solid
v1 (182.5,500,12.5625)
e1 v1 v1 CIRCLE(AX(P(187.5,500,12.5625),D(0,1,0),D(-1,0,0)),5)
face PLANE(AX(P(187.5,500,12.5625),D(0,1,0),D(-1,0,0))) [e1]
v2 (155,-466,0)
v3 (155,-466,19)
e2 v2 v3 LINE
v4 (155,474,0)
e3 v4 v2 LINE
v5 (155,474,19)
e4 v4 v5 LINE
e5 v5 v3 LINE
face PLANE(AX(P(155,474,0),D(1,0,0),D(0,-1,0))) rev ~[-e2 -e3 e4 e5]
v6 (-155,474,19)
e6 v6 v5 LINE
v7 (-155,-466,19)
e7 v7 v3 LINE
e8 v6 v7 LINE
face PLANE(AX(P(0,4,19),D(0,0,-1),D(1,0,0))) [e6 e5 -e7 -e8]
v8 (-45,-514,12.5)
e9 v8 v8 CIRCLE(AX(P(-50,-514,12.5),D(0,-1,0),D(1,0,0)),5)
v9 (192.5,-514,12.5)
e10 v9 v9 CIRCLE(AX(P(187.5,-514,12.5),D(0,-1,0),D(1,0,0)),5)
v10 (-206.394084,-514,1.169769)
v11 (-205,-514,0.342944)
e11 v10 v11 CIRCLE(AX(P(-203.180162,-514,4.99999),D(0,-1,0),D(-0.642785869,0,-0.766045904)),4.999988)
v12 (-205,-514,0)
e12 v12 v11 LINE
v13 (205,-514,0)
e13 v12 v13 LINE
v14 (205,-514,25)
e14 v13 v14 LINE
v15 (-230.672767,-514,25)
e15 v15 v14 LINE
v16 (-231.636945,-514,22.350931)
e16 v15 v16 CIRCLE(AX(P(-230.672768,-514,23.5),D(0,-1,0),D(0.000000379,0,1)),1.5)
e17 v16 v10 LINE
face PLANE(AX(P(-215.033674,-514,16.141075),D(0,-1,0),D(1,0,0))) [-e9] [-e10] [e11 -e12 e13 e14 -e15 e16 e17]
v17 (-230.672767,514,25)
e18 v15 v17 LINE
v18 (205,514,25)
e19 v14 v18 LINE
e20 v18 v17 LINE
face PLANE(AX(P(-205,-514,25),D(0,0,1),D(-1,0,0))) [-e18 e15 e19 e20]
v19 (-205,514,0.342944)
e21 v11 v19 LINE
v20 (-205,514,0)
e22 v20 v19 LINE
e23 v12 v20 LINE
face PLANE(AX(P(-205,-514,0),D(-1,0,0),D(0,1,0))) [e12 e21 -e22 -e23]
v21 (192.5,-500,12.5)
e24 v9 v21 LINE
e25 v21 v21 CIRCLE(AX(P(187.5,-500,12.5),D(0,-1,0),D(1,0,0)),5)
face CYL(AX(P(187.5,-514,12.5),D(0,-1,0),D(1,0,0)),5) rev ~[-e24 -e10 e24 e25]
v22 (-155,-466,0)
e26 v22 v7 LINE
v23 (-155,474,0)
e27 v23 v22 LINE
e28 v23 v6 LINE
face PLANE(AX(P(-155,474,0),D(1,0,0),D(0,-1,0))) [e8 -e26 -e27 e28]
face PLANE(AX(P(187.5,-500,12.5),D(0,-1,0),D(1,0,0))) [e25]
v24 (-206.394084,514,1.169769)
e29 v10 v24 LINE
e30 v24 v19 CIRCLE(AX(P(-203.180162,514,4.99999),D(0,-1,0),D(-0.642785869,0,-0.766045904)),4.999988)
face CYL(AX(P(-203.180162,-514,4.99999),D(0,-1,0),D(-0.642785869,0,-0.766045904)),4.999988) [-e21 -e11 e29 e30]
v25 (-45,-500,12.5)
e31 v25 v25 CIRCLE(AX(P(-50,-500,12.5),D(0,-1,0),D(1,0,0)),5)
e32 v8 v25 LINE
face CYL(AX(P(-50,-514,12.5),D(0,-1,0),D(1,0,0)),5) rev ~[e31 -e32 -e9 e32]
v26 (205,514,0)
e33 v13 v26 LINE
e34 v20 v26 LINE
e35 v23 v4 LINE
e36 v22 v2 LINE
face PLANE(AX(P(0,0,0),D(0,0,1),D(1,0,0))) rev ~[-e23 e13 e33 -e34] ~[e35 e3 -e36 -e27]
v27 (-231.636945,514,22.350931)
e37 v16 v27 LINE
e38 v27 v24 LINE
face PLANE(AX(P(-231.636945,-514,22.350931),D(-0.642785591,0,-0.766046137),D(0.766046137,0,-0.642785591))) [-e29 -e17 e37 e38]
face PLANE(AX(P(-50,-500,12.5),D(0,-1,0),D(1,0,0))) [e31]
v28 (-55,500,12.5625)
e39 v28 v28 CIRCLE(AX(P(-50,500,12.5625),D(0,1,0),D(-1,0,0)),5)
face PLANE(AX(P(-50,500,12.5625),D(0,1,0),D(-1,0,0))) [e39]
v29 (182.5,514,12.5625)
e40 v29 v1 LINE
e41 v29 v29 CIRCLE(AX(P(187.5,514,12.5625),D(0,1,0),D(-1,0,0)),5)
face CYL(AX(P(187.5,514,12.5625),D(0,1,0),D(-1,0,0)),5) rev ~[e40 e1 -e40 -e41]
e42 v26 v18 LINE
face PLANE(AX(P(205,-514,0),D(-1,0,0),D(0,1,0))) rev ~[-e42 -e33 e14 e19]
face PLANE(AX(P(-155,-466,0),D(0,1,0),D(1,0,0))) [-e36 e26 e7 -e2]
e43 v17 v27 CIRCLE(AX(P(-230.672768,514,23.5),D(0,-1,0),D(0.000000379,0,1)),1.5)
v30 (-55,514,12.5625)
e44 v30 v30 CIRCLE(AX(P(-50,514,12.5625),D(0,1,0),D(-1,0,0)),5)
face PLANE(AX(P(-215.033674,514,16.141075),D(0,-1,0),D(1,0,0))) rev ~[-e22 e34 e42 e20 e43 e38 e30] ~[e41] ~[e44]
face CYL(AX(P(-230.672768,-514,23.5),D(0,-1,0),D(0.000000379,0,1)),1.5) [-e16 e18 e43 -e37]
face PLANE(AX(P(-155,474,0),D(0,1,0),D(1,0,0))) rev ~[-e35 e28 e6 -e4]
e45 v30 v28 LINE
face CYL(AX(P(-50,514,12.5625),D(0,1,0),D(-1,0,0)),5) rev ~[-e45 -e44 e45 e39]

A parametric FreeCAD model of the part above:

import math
import FreeCAD as App
import Part
import Sketcher

V = App.Vector

doc = App.newDocument("Part")
body = doc.addObject("PartDesign::Body", "Body")

sketch1 = body.newObject("Sketcher::SketchObject", "Sketch")
sketch1.AttachmentSupport = (doc.getObject("XY_Plane"), [""])
sketch1.MapMode = "FlatFace"
sketch1.addGeometry(Part.LineSegment(V(-205, 514, 0), V(-205, -514, 0)), False)
sketch1.addGeometry(Part.LineSegment(V(-205, -514, 0), V(205, -514, 0)), False)
sketch1.addGeometry(Part.LineSegment(V(205, -514, 0), V(205, 514, 0)), False)
sketch1.addGeometry(Part.LineSegment(V(205, 514, 0), V(-205, 514, 0)), False)
sketch1.addConstraint(Sketcher.Constraint("Coincident", 0, 2, 1, 1))
sketch1.addConstraint(Sketcher.Constraint("Coincident", 1, 2, 2, 1))
sketch1.addConstraint(Sketcher.Constraint("Coincident", 2, 2, 3, 1))
sketch1.addConstraint(Sketcher.Constraint("Coincident", 3, 2, 0, 1))
sketch1.addConstraint(Sketcher.Constraint("Vertical", 0))
sketch1.addConstraint(Sketcher.Constraint("Horizontal", 1))
sketch1.addConstraint(Sketcher.Constraint("Vertical", 2))
sketch1.addConstraint(Sketcher.Constraint("Horizontal", 3))
sketch1.addConstraint(Sketcher.Constraint("Symmetric", 0, 2, 2, 2, -1, 1))
sketch1.addConstraint(Sketcher.Constraint("DistanceX", 1, 1, 1, 2, 410.0))
sketch1.addConstraint(Sketcher.Constraint("DistanceY", 0, 2, 0, 1, 1028.0))
pad1 = body.newObject("PartDesign::Pad", "Pad")
pad1.Profile = sketch1
pad1.Length = 25

sketch2 = body.newObject("Sketcher::SketchObject", "Sketch001")
sketch2.AttachmentSupport = (doc.getObject("XZ_Plane"), [""])
sketch2.MapMode = "FlatFace"
sketch2.AttachmentOffset = App.Placement(V(0, 0, 514), App.Rotation())
sketch2.addGeometry(Part.Circle(V(188, 12, 0), V(0, 0, 1), 5), False)
sketch2.addGeometry(Part.Circle(V(-50, 12, 0), V(0, 0, 1), 5), False)
sketch2.addConstraint(Sketcher.Constraint("Equal", 0, 1))
sketch2.addConstraint(Sketcher.Constraint("Horizontal", 0, 3, 1, 3))
sketch2.addConstraint(Sketcher.Constraint("Diameter", 0, 10.0))
sketch2.addConstraint(Sketcher.Constraint("DistanceX", 1, 3, -1, 1, 50.0))
sketch2.addConstraint(Sketcher.Constraint("DistanceX", -1, 1, 0, 3, 187.5))
sketch2.addConstraint(Sketcher.Constraint("DistanceY", -1, 1, 0, 3, 12.5))
pocket1 = body.newObject("PartDesign::Pocket", "Pocket")
pocket1.Profile = sketch2
pocket1.Length = 14

sketch3 = body.newObject("Sketcher::SketchObject", "Sketch002")
sketch3.AttachmentSupport = (doc.getObject("XZ_Plane"), [""])
sketch3.MapMode = "FlatFace"
sketch3.AttachmentOffset = App.Placement(V(0, 0, -514), App.Rotation())
sketch3.addGeometry(Part.Circle(V(188, 13, 0), V(0, 0, 1), 5), False)
sketch3.addGeometry(Part.Circle(V(-50, 13, 0), V(0, 0, 1), 5), False)
sketch3.addConstraint(Sketcher.Constraint("Equal", 0, 1))
sketch3.addConstraint(Sketcher.Constraint("Horizontal", 0, 3, 1, 3))
sketch3.addConstraint(Sketcher.Constraint("Diameter", 0, 10.0))
sketch3.addConstraint(Sketcher.Constraint("DistanceX", 1, 3, -1, 1, 50.0))
sketch3.addConstraint(Sketcher.Constraint("DistanceX", -1, 1, 0, 3, 187.5))
sketch3.addConstraint(Sketcher.Constraint("DistanceY", -1, 1, 0, 3, 12.5625))
pocket2 = body.newObject("PartDesign::Pocket", "Pocket001")
pocket2.Profile = sketch3
pocket2.Length = 14
pocket2.Reversed = True

sketch4 = body.newObject("Sketcher::SketchObject", "Sketch003")
sketch4.AttachmentSupport = (doc.getObject("XZ_Plane"), [""])
sketch4.MapMode = "FlatFace"
sketch4.AttachmentOffset = App.Placement(V(0, 0, 514), App.Rotation())
sketch4.addGeometry(Part.LineSegment(V(-205, 0.3, 0), V(-205, 25, 0)), False)
sketch4.addGeometry(Part.LineSegment(V(-205, 25, 0), V(-230.7, 25, 0)), False)
sketch4.addGeometry(Part.ArcOfCircle(Part.Circle(V(-230.7, 23.5, 0), V(0, 0, 1), 1.5), math.radians(90), math.radians(230)), False)
sketch4.addGeometry(Part.LineSegment(V(-231.6, 22.4, 0), V(-206.4, 1.2, 0)), False)
sketch4.addGeometry(Part.ArcOfCircle(Part.Circle(V(-203.2, 5, 0), V(0, 0, 1), 5), math.radians(-130), math.radians(-111.34)), False)
sketch4.addConstraint(Sketcher.Constraint("Coincident", 0, 2, 1, 1))
sketch4.addConstraint(Sketcher.Constraint("Tangent", 1, 2, 2, 1))
sketch4.addConstraint(Sketcher.Constraint("Tangent", 2, 2, 3, 1))
sketch4.addConstraint(Sketcher.Constraint("Tangent", 3, 2, 4, 1))
sketch4.addConstraint(Sketcher.Constraint("Coincident", 4, 2, 0, 1))
sketch4.addConstraint(Sketcher.Constraint("Vertical", 0))
sketch4.addConstraint(Sketcher.Constraint("Horizontal", 1))
sketch4.addConstraint(Sketcher.Constraint("Radius", 2, 1.5))
sketch4.addConstraint(Sketcher.Constraint("DistanceX", 0, 2, -1, 1, 205.0))
sketch4.addConstraint(Sketcher.Constraint("DistanceY", -1, 1, 0, 2, 25.0))
sketch4.addConstraint(Sketcher.Constraint("Radius", 4, 4.999988))
sketch4.addConstraint(Sketcher.Constraint("Distance", 3, 32.952142))
sketch4.addConstraint(Sketcher.Constraint("DistanceX", 1, 2, 1, 1, 25.672767))
sketch4.addConstraint(Sketcher.Constraint("DistanceY", 0, 1, 0, 2, 24.657056))
pad2 = body.newObject("PartDesign::Pad", "Pad001")
pad2.Profile = sketch4
pad2.Length = 1028
pad2.Reversed = True

sketch5 = body.newObject("Sketcher::SketchObject", "Sketch004")
sketch5.AttachmentSupport = (doc.getObject("XY_Plane"), [""])
sketch5.MapMode = "FlatFace"
sketch5.addGeometry(Part.LineSegment(V(-155, -466, 0), V(-155, 474, 0)), False)
sketch5.addGeometry(Part.LineSegment(V(-155, 474, 0), V(155, 474, 0)), False)
sketch5.addGeometry(Part.LineSegment(V(155, 474, 0), V(155, -466, 0)), False)
sketch5.addGeometry(Part.LineSegment(V(155, -466, 0), V(-155, -466, 0)), False)
sketch5.addConstraint(Sketcher.Constraint("Coincident", 0, 2, 1, 1))
sketch5.addConstraint(Sketcher.Constraint("Coincident", 1, 2, 2, 1))
sketch5.addConstraint(Sketcher.Constraint("Coincident", 2, 2, 3, 1))
sketch5.addConstraint(Sketcher.Constraint("Coincident", 3, 2, 0, 1))
sketch5.addConstraint(Sketcher.Constraint("Vertical", 0))
sketch5.addConstraint(Sketcher.Constraint("Horizontal", 1))
sketch5.addConstraint(Sketcher.Constraint("Vertical", 2))
sketch5.addConstraint(Sketcher.Constraint("Horizontal", 3))
sketch5.addConstraint(Sketcher.Constraint("DistanceX", 1, 1, 1, 2, 310.0))
sketch5.addConstraint(Sketcher.Constraint("DistanceY", 0, 1, 0, 2, 940.0))
sketch5.addConstraint(Sketcher.Constraint("DistanceX", 0, 2, -1, 1, 155.0))
sketch5.addConstraint(Sketcher.Constraint("DistanceY", -1, 1, 0, 2, 474.0))
pocket3 = body.newObject("PartDesign::Pocket", "Pocket002")
pocket3.Profile = sketch5
pocket3.Length = 19
pocket3.Reversed = True

doc.recompute()
